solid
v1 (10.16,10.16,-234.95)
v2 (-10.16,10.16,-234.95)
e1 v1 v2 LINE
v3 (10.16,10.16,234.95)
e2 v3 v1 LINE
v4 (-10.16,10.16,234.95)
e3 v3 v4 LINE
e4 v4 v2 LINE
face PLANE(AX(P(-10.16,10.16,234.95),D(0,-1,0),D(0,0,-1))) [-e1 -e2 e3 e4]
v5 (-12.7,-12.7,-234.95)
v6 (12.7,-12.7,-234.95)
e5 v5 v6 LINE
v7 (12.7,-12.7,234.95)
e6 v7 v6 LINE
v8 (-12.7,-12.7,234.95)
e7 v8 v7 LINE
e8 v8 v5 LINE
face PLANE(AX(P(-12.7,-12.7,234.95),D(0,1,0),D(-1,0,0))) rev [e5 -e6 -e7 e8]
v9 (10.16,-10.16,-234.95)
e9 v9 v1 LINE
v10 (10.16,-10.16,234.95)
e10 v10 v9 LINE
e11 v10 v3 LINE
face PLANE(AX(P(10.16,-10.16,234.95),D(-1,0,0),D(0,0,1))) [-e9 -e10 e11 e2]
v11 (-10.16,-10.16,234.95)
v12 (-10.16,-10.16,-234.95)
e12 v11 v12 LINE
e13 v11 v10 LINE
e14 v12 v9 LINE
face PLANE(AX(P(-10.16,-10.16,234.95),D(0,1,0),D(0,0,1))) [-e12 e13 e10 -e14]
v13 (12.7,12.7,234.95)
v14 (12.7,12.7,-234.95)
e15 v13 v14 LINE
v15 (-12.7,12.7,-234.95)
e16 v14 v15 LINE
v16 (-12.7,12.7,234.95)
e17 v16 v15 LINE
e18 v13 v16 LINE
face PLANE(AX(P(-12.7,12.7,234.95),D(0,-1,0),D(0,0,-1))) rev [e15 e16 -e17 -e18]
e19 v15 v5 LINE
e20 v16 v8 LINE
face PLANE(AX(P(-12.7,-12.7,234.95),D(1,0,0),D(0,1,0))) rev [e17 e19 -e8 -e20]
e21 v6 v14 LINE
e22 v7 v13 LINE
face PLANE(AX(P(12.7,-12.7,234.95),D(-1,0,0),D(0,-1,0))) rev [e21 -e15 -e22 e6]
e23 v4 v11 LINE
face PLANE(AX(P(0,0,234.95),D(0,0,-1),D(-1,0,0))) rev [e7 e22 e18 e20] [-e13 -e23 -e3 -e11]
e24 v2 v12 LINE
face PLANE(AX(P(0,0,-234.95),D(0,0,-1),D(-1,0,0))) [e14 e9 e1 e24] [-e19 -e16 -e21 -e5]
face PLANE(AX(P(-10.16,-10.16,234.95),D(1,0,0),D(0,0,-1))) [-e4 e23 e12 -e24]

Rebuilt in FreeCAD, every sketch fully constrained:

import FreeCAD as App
import Part
import Sketcher

V = App.Vector
Q = App.Units.Quantity

doc = App.newDocument("Part")
body = doc.addObject("PartDesign::Body", "Body")

sketch1 = body.newObject("Sketcher::SketchObject", "Sketch")
sketch1.AttachmentSupport = (doc.getObject("XY_Plane"), [""])
sketch1.MapMode = "FlatFace"
sketch1.addGeometry(Part.LineSegment(V(-13, 13, 0), V(-13, -13, 0)), False)
sketch1.addGeometry(Part.LineSegment(V(-13, -13, 0), V(13, -13, 0)), False)
sketch1.addGeometry(Part.LineSegment(V(13, -13, 0), V(13, 13, 0)), False)
sketch1.addGeometry(Part.LineSegment(V(13, 13, 0), V(-13, 13, 0)), False)
sketch1.addGeometry(Part.LineSegment(V(10, -10, 0), V(-10, -10, 0)), False)
sketch1.addGeometry(Part.LineSegment(V(-10, -10, 0), V(-10, 10, 0)), False)
sketch1.addGeometry(Part.LineSegment(V(-10, 10, 0), V(10, 10, 0)), False)
sketch1.addGeometry(Part.LineSegment(V(10, 10, 0), V(10, -10, 0)), False)
sketch1.addConstraint(Sketcher.Constraint("Coincident", 0, 2, 1, 1))
sketch1.addConstraint(Sketcher.Constraint("Coincident", 1, 2, 2, 1))
sketch1.addConstraint(Sketcher.Constraint("Coincident", 2, 2, 3, 1))
sketch1.addConstraint(Sketcher.Constraint("Coincident", 3, 2, 0, 1))
sketch1.addConstraint(Sketcher.Constraint("Coincident", 4, 2, 5, 1))
sketch1.addConstraint(Sketcher.Constraint("Coincident", 5, 2, 6, 1))
sketch1.addConstraint(Sketcher.Constraint("Coincident", 6, 2, 7, 1))
sketch1.addConstraint(Sketcher.Constraint("Coincident", 7, 2, 4, 1))
sketch1.addConstraint(Sketcher.Constraint("Vertical", 0))
sketch1.addConstraint(Sketcher.Constraint("Horizontal", 1))
sketch1.addConstraint(Sketcher.Constraint("Vertical", 2))
sketch1.addConstraint(Sketcher.Constraint("Horizontal", 3))
sketch1.addConstraint(Sketcher.Constraint("Horizontal", 4))
sketch1.addConstraint(Sketcher.Constraint("Vertical", 5))
sketch1.addConstraint(Sketcher.Constraint("Horizontal", 6))
sketch1.addConstraint(Sketcher.Constraint("Vertical", 7))
sketch1.addConstraint(Sketcher.Constraint("Symmetric", 0, 2, 2, 2, -1, 1))
sketch1.addConstraint(Sketcher.Constraint("Symmetric", 4, 2, 6, 2, -1, 1))
sketch1.addConstraint(Sketcher.Constraint("Equal", 3, 0))
sketch1.addConstraint(Sketcher.Constraint("Equal", 6, 5))
sketch1.addConstraint(Sketcher.Constraint("DistanceX", 1, 1, 1, 2, Q("1 in")))
sketch1.addConstraint(Sketcher.Constraint("DistanceX", 4, 2, 4, 1, Q("0.8 in")))
pad1 = body.newObject("PartDesign::Pad", "Pad")
pad1.Profile = sketch1
pad1.Length = Q("18.5 in")
pad1.Midplane = True

doc.recompute()
